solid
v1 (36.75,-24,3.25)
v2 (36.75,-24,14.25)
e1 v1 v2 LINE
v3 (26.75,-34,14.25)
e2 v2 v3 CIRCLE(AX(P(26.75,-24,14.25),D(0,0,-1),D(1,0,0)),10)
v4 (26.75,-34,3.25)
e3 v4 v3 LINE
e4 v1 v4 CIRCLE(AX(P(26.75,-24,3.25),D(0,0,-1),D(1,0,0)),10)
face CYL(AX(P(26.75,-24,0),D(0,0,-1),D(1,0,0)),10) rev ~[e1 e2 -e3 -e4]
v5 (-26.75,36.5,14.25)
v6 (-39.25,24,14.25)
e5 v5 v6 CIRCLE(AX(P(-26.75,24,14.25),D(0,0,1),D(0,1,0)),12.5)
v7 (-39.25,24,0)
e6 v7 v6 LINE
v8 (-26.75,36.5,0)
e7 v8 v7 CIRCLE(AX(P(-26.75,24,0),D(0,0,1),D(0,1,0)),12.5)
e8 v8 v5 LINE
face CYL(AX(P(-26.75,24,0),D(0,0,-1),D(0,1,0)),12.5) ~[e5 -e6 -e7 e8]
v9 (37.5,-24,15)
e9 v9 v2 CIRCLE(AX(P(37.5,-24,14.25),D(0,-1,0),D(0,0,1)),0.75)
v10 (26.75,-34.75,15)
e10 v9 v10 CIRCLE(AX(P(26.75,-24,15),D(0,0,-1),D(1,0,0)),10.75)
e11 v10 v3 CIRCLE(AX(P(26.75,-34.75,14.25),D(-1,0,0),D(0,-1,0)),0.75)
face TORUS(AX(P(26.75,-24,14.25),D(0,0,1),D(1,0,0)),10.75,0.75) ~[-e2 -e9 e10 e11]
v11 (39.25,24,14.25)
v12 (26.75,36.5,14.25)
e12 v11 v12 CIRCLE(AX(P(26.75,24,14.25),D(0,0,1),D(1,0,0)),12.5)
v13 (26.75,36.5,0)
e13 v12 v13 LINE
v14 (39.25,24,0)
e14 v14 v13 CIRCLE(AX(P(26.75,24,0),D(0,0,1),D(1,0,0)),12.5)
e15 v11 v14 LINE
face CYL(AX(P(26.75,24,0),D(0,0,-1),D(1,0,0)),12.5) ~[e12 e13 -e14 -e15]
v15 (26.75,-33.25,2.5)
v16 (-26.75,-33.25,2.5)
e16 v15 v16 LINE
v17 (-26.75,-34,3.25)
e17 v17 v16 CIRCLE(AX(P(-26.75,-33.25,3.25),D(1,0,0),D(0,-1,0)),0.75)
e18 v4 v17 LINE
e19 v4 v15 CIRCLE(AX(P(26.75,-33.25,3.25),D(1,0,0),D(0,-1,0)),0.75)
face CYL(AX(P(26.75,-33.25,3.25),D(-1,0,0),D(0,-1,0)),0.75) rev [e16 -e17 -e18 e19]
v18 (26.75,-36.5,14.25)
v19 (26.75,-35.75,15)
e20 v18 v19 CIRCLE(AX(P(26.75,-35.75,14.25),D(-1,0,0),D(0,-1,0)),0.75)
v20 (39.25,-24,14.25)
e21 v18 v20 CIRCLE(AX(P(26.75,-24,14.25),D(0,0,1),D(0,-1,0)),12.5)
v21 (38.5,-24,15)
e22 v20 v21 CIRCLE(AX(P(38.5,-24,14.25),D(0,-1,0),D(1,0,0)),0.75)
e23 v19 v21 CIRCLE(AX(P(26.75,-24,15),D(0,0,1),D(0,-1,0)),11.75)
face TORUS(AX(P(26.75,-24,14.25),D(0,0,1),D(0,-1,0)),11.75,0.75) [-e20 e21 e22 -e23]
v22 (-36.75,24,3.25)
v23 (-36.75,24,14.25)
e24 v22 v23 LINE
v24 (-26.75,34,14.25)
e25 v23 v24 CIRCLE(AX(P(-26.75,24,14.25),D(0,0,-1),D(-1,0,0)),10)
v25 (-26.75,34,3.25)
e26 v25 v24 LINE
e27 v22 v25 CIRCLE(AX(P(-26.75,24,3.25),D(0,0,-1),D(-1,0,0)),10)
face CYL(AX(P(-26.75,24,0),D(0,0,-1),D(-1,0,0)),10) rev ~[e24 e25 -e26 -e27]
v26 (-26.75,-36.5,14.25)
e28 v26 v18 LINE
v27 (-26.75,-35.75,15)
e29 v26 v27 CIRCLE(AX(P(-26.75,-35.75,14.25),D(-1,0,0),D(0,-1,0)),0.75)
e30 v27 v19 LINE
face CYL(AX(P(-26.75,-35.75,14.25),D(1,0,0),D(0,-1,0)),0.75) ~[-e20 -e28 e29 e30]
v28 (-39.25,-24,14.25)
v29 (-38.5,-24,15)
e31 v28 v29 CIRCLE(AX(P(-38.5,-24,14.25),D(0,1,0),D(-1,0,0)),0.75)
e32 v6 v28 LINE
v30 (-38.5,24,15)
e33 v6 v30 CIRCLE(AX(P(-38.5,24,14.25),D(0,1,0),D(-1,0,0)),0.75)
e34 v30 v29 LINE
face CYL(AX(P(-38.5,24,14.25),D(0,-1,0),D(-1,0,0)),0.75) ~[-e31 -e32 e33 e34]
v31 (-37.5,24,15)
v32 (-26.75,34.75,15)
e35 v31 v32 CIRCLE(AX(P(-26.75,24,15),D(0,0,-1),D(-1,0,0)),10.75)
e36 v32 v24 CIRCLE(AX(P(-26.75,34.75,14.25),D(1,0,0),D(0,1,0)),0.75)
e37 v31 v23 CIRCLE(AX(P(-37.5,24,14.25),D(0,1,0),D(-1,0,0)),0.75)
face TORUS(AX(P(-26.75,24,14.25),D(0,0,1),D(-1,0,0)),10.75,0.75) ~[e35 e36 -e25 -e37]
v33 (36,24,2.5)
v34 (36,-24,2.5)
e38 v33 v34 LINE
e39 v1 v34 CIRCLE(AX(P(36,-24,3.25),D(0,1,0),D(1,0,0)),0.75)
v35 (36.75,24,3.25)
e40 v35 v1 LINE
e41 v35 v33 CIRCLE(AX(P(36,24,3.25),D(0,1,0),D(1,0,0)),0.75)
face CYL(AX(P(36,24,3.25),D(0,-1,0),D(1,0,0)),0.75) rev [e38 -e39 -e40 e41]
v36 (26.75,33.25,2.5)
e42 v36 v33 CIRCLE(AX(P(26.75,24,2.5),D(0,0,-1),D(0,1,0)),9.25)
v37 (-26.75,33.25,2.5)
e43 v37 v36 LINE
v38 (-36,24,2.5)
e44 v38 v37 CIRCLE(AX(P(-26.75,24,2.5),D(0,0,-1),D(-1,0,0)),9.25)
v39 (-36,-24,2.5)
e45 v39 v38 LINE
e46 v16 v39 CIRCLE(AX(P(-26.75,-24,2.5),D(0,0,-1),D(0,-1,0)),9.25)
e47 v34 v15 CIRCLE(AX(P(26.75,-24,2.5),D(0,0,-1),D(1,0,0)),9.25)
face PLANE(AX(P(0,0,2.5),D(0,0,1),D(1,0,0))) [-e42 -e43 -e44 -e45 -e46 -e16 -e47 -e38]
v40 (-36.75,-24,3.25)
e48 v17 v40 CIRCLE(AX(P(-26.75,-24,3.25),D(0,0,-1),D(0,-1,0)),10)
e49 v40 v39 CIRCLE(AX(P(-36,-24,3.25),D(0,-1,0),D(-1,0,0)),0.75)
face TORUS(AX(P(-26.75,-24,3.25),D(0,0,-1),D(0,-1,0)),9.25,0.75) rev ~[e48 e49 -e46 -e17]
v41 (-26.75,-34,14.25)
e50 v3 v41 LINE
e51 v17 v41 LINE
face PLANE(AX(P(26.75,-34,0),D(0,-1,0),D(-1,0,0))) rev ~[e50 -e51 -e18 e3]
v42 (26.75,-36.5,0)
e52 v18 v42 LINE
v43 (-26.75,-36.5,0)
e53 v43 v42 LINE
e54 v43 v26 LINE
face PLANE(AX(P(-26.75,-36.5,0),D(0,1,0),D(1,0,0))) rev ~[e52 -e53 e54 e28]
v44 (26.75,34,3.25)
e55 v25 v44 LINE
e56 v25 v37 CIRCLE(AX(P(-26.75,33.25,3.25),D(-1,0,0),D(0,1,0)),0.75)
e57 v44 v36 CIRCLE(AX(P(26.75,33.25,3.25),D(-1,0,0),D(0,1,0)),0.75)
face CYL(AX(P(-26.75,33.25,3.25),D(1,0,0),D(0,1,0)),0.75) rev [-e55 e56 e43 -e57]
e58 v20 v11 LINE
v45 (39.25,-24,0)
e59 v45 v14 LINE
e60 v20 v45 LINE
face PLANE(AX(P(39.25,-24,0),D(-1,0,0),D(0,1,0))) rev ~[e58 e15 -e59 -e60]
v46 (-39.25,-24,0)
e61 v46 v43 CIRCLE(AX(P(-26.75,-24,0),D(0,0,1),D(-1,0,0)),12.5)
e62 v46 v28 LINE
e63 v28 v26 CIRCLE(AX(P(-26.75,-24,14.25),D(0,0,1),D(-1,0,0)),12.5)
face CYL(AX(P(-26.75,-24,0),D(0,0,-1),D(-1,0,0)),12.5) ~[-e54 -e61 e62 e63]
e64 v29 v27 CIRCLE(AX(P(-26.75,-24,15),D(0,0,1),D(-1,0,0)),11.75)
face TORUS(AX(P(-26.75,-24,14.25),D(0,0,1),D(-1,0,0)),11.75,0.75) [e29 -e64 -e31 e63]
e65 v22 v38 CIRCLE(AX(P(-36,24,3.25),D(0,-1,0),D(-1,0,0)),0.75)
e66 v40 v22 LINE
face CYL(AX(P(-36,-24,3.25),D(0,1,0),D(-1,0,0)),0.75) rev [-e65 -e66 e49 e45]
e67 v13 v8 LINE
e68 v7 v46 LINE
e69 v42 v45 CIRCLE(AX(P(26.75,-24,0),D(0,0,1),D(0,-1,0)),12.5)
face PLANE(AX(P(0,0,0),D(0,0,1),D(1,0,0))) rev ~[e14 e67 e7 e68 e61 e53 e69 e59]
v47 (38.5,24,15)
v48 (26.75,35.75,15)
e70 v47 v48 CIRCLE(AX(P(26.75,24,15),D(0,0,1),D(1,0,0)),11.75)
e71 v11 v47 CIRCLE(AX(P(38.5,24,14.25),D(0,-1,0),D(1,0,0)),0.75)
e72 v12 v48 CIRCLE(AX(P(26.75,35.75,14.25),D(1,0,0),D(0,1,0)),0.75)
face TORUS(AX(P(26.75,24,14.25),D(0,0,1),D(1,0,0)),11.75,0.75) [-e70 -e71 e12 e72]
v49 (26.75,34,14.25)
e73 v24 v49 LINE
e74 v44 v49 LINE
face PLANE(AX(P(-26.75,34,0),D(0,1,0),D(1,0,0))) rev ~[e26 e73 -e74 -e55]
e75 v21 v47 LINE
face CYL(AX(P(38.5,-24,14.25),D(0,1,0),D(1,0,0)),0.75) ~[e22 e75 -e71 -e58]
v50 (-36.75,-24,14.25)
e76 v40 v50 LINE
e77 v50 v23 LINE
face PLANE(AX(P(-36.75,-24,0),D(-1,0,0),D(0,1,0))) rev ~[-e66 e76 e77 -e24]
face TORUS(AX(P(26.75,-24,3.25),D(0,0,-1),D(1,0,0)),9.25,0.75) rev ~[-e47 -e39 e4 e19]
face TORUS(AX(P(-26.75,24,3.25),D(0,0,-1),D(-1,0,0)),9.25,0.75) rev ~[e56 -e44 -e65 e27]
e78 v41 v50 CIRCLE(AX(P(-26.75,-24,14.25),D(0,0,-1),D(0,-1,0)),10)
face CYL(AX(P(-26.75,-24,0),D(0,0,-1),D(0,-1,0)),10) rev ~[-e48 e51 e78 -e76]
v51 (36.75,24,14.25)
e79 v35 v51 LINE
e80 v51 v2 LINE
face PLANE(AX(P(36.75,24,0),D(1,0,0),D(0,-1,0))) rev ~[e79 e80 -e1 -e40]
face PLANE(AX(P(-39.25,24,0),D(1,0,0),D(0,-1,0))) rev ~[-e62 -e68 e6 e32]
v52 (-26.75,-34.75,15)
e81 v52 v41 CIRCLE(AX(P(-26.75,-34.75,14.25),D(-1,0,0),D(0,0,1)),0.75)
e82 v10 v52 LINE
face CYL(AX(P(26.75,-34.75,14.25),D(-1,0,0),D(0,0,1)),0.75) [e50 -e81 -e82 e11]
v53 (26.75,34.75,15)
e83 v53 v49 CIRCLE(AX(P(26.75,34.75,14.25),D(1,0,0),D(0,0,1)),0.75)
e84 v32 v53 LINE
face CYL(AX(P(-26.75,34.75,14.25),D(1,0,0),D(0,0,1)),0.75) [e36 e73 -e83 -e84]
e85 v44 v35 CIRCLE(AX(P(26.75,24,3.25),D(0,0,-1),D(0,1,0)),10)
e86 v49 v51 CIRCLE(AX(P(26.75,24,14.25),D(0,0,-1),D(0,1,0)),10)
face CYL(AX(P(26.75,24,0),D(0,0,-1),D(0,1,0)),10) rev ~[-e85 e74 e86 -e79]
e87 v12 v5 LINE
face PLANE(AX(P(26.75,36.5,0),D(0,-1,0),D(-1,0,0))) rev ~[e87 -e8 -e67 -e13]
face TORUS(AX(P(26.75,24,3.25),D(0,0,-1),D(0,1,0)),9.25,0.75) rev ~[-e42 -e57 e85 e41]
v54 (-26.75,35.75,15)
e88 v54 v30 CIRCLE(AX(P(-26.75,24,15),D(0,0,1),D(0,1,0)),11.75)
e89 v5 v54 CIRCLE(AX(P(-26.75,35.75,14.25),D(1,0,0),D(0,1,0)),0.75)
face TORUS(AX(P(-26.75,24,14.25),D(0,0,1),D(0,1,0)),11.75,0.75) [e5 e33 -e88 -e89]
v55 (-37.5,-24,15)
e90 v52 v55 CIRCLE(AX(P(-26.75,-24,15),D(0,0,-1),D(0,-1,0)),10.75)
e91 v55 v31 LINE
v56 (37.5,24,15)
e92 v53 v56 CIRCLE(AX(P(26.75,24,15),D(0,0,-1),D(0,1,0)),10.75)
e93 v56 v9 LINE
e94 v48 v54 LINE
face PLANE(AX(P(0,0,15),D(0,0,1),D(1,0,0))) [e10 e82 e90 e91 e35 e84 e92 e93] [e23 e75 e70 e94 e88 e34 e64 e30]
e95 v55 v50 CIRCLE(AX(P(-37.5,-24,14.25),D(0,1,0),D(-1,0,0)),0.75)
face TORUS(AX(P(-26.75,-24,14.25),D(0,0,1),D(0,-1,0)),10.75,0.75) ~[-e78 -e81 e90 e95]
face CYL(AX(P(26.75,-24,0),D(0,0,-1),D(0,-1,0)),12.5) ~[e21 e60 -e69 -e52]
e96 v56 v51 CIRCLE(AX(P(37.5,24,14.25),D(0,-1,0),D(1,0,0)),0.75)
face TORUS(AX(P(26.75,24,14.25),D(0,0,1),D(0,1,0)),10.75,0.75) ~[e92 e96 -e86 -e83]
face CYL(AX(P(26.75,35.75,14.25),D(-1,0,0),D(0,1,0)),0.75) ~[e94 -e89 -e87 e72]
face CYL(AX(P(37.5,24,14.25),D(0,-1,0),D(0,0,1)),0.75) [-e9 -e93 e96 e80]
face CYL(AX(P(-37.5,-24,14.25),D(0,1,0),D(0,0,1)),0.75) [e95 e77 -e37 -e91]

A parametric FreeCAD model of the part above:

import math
import FreeCAD as App
import Part
import Sketcher

V = App.Vector


def edges_at(feature, points):
    """Names of the edges that pass closest to the given points."""
    edges = feature.Shape.Edges
    near = lambda p: min(range(len(edges)), key=lambda i: edges[i].distToShape(Part.Vertex(*p))[0])
    return sorted({f"Edge{near(p) + 1}" for p in points})

doc = App.newDocument("Part")
body = doc.addObject("PartDesign::Body", "Body")

# Sketch on XY plane
sketch1 = body.newObject("Sketcher::SketchObject", "Sketch")
sketch1.AttachmentSupport = (doc.getObject("XY_Plane"), [""])
sketch1.MapMode = "FlatFace"
sketch1.addGeometry([
    Part.LineSegment(V(26.75, 36.5, 0), V(-26.75, 36.5, 0)),  # 0
    Part.ArcOfCircle(Part.Circle(V(-26.75, 24, 0), V(0, 0, 1), 12.5), math.radians(90), math.radians(180)),  # 1
    Part.LineSegment(V(-39.25, 24, 0), V(-39.25, -24, 0)),  # 2
    Part.ArcOfCircle(Part.Circle(V(-26.75, -24, 0), V(0, 0, 1), 12.5), math.radians(180), math.radians(270)),  # 3
    Part.LineSegment(V(-26.75, -36.5, 0), V(26.75, -36.5, 0)),  # 4
    Part.ArcOfCircle(Part.Circle(V(26.75, -24, 0), V(0, 0, 1), 12.5), math.radians(-90), math.radians(0)),  # 5
    Part.LineSegment(V(39.25, -24, 0), V(39.25, 24, 0)),  # 6
    Part.ArcOfCircle(Part.Circle(V(26.75, 24, 0), V(0, 0, 1), 12.5), math.radians(0), math.radians(90)),  # 7
], False)
sketch1.addConstraint([
    Sketcher.Constraint("Tangent", 0, 2, 1, 1),
    Sketcher.Constraint("Tangent", 1, 2, 2, 1),
    Sketcher.Constraint("Tangent", 2, 2, 3, 1),
    Sketcher.Constraint("Tangent", 3, 2, 4, 1),
    Sketcher.Constraint("Tangent", 4, 2, 5, 1),
    Sketcher.Constraint("Tangent", 5, 2, 6, 1),
    Sketcher.Constraint("Tangent", 6, 2, 7, 1),
    Sketcher.Constraint("Tangent", 7, 2, 0, 1),
    Sketcher.Constraint("Horizontal", 0),
    Sketcher.Constraint("Vertical", 2),
    Sketcher.Constraint("Horizontal", 4),
    Sketcher.Constraint("Vertical", 6),
    Sketcher.Constraint("Equal", 1, 3),
    Sketcher.Constraint("Equal", 3, 5),
    Sketcher.Constraint("Equal", 5, 7),
    Sketcher.Constraint("Symmetric", 1, 3, 5, 3, -1, 1),
    Sketcher.Constraint("Radius", 1, 12.5),
    Sketcher.Constraint("DistanceY", 2, 2, 2, 1, 48.0),
    Sketcher.Constraint("DistanceX", 0, 2, 0, 1, 53.5),
])
pad1 = body.newObject("PartDesign::Pad", "Pad")
pad1.Profile = sketch1
pad1.Length = 2.5

# Sketch on XY plane
sketch2 = body.newObject("Sketcher::SketchObject", "Sketch001")
sketch2.AttachmentSupport = (doc.getObject("XY_Plane"), [""])
sketch2.MapMode = "FlatFace"
sketch2.addGeometry([
    Part.LineSegment(V(26.75, 36.5, 0), V(-26.75, 36.5, 0)),  # 0
    Part.ArcOfCircle(Part.Circle(V(-26.75, 24, 0), V(0, 0, 1), 12.5), math.radians(90), math.radians(180)),  # 1
    Part.LineSegment(V(-39.25, 24, 0), V(-39.25, -24, 0)),  # 2
    Part.ArcOfCircle(Part.Circle(V(-26.75, -24, 0), V(0, 0, 1), 12.5), math.radians(180), math.radians(270)),  # 3
    Part.LineSegment(V(-26.75, -36.5, 0), V(26.75, -36.5, 0)),  # 4
    Part.ArcOfCircle(Part.Circle(V(26.75, -24, 0), V(0, 0, 1), 12.5), math.radians(-90), math.radians(0)),  # 5
    Part.LineSegment(V(39.25, -24, 0), V(39.25, 24, 0)),  # 6
    Part.ArcOfCircle(Part.Circle(V(26.75, 24, 0), V(0, 0, 1), 12.5), math.radians(0), math.radians(90)),  # 7
    Part.LineSegment(V(-36.75, -24, 0), V(-36.75, 24, 0)),  # 8
    Part.ArcOfCircle(Part.Circle(V(-26.75, 24, 0), V(0, 0, 1), 10), math.radians(90), math.radians(180)),  # 9
    Part.LineSegment(V(-26.75, 34, 0), V(26.75, 34, 0)),  # 10
    Part.ArcOfCircle(Part.Circle(V(26.75, 24, 0), V(0, 0, 1), 10), math.radians(0), math.radians(90)),  # 11
    Part.LineSegment(V(36.75, 24, 0), V(36.75, -24, 0)),  # 12
    Part.ArcOfCircle(Part.Circle(V(26.75, -24, 0), V(0, 0, 1), 10), math.radians(-90), math.radians(0)),  # 13
    Part.LineSegment(V(26.75, -34, 0), V(-26.75, -34, 0)),  # 14
    Part.ArcOfCircle(Part.Circle(V(-26.75, -24, 0), V(0, 0, 1), 10), math.radians(180), math.radians(270)),  # 15
], False)
sketch2.addConstraint([
    Sketcher.Constraint("Tangent", 0, 2, 1, 1),
    Sketcher.Constraint("Tangent", 1, 2, 2, 1),
    Sketcher.Constraint("Tangent", 2, 2, 3, 1),
    Sketcher.Constraint("Tangent", 3, 2, 4, 1),
    Sketcher.Constraint("Tangent", 4, 2, 5, 1),
    Sketcher.Constraint("Tangent", 5, 2, 6, 1),
    Sketcher.Constraint("Tangent", 6, 2, 7, 1),
    Sketcher.Constraint("Tangent", 7, 2, 0, 1),
    Sketcher.Constraint("Tangent", 8, 2, 9, 2),
    Sketcher.Constraint("Tangent", 9, 1, 10, 1),
    Sketcher.Constraint("Tangent", 10, 2, 11, 2),
    Sketcher.Constraint("Tangent", 11, 1, 12, 1),
    Sketcher.Constraint("Tangent", 12, 2, 13, 2),
    Sketcher.Constraint("Tangent", 13, 1, 14, 1),
    Sketcher.Constraint("Tangent", 14, 2, 15, 2),
    Sketcher.Constraint("Tangent", 15, 1, 8, 1),
    Sketcher.Constraint("Horizontal", 0),
    Sketcher.Constraint("Vertical", 2),
    Sketcher.Constraint("Horizontal", 4),
    Sketcher.Constraint("Vertical", 6),
    Sketcher.Constraint("Vertical", 8),
    Sketcher.Constraint("Horizontal", 10),
    Sketcher.Constraint("Vertical", 12),
    Sketcher.Constraint("Horizontal", 14),
    Sketcher.Constraint("Coincident", 9, 3, 1, 3),
    Sketcher.Constraint("Coincident", 11, 3, 7, 3),
    Sketcher.Constraint("Coincident", 13, 3, 5, 3),
    Sketcher.Constraint("Equal", 1, 3),
    Sketcher.Constraint("Equal", 3, 5),
    Sketcher.Constraint("Equal", 5, 7),
    Sketcher.Constraint("Equal", 13, 15),
    Sketcher.Constraint("Symmetric", 1, 3, 5, 3, -1, 1),
    Sketcher.Constraint("Radius", 9, 10.0),
    Sketcher.Constraint("Radius", 1, 12.5),
    Sketcher.Constraint("DistanceY", 2, 2, 2, 1, 48.0),
    Sketcher.Constraint("DistanceX", 0, 2, 0, 1, 53.5),
])
pad2 = body.newObject("PartDesign::Pad", "Pad001")
pad2.Profile = sketch2
pad2.Length = 15
doc.recompute()

fillet = body.newObject("PartDesign::Fillet", "Fillet")
fillet.Base = (pad2, edges_at(pad2, [
    (0, 36.5, 15),
    (-35.589, 32.839, 15),
    (-39.25, 0, 15),
    (-35.589, -32.839, 15),
    (0, -36.5, 15),
    (35.589, -32.839, 15),
    (39.25, 0, 15),
    (35.589, 32.839, 15),
    (-33.821, 31.071, 15),
    (0, 34, 15),
    (33.821, 31.071, 15),
    (36.75, 0, 15),
    (33.821, -31.071, 15),
    (0, -34, 15),
    (-33.821, -31.071, 15),
    (-36.75, 0, 15),
    (-33.821, 31.071, 2.5),
    (0, 34, 2.5),
    (33.821, 31.071, 2.5),
    (36.75, 0, 2.5),
    (33.821, -31.071, 2.5),
    (0, -34, 2.5),
    (-33.821, -31.071, 2.5),
    (-36.75, 0, 2.5),
]))
fillet.Radius = 0.75

doc.recompute()
